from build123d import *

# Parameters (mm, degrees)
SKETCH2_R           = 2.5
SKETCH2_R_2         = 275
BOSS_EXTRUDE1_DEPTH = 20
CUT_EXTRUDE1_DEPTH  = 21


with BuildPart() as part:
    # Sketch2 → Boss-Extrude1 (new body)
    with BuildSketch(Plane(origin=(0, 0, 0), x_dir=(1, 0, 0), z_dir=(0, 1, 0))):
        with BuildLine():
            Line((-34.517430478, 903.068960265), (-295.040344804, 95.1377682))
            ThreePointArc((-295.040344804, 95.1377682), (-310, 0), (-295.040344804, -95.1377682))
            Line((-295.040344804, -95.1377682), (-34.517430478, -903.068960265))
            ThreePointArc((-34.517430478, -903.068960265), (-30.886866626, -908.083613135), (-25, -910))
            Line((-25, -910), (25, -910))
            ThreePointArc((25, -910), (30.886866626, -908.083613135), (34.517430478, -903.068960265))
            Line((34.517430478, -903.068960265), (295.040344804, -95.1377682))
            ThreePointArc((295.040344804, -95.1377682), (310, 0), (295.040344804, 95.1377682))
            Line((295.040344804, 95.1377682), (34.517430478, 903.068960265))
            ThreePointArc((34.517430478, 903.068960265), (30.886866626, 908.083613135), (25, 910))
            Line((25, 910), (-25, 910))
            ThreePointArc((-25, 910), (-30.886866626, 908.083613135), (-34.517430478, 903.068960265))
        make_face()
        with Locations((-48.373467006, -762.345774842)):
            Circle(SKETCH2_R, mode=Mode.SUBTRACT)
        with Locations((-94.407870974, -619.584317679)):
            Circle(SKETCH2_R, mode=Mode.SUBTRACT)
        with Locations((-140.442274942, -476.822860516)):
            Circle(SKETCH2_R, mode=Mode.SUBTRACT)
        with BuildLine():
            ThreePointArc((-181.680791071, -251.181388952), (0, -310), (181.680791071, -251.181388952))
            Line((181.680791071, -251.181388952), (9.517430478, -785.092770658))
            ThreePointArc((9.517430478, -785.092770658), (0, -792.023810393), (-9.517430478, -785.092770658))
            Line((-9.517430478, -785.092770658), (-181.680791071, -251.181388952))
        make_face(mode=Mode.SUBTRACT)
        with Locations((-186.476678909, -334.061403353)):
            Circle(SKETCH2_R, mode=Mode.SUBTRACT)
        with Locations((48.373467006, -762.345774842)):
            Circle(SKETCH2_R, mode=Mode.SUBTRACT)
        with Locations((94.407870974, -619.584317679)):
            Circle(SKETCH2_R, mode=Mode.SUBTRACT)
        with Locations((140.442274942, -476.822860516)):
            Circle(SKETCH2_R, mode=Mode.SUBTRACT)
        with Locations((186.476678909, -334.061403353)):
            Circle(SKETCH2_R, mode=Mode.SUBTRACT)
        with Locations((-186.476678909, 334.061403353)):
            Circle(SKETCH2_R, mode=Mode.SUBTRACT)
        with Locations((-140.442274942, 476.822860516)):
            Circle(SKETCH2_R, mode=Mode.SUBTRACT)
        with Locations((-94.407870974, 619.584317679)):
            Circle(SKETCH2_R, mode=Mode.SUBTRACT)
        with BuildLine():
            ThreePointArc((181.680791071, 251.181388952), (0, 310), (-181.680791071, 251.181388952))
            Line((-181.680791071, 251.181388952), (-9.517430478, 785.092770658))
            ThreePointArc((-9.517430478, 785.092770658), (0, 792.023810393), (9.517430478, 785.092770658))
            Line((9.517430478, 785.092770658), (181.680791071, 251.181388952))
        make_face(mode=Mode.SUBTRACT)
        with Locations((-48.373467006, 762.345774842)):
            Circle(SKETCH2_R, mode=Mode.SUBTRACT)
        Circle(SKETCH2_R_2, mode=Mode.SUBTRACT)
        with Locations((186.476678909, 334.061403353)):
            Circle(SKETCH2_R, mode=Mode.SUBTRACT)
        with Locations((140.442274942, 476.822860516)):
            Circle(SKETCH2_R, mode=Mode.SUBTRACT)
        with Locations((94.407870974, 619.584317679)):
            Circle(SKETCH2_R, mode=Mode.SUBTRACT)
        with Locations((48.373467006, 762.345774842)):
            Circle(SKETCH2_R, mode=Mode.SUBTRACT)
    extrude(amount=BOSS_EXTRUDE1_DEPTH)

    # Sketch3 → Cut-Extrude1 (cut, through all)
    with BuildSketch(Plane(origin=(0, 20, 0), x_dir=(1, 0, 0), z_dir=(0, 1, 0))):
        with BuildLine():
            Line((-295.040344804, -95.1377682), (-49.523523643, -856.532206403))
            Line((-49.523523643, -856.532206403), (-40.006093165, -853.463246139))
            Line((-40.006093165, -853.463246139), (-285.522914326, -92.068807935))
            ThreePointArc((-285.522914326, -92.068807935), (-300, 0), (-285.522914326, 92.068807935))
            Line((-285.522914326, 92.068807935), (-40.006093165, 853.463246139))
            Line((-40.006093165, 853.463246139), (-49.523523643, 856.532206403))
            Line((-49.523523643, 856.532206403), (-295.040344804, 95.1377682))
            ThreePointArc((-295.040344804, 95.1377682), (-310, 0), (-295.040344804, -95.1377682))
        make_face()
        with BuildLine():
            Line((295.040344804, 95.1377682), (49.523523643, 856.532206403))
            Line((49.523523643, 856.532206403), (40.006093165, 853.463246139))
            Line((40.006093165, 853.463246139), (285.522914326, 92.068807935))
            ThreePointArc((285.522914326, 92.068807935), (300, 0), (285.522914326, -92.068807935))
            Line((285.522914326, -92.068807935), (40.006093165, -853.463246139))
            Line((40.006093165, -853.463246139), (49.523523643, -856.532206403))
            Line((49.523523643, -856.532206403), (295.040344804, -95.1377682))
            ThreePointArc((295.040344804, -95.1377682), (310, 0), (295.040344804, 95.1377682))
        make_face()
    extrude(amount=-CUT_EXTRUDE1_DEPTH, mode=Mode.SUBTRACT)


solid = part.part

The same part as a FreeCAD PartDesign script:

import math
import FreeCAD as App
import Part
import Sketcher
Q = App.Units.Quantity

doc = App.newDocument("Part")
body = doc.addObject("PartDesign::Body", "Body")

sketch1 = doc.addObject("Sketcher::SketchObject", "Sketch")
body.addObject(sketch1)
sketch1.AttachmentSupport = (doc.XZ_Plane, [""])
sketch1.MapMode = "FlatFace"
sketch1.addGeometry([
    Part.LineSegment(App.Vector(-34.51743, -903.06896, 0), App.Vector(-295.040345, -95.137768, 0)),
    Part.ArcOfCircle(Part.Circle(App.Vector(0, 0, 0), App.Vector(0, 0, 1), 310), math.radians(162.12773), math.radians(197.87227)),
    Part.LineSegment(App.Vector(-295.040345, 95.137768, 0), App.Vector(-34.51743, 903.06896, 0)),
    Part.ArcOfCircle(Part.Circle(App.Vector(-25, 900, 0), App.Vector(0, 0, 1), 10), math.radians(90), math.radians(162.12773)),
    Part.LineSegment(App.Vector(-25, 910, 0), App.Vector(25, 910, 0)),
    Part.ArcOfCircle(Part.Circle(App.Vector(25, 900, 0), App.Vector(0, 0, 1), 10), math.radians(17.87227), math.radians(90)),
    Part.LineSegment(App.Vector(34.51743, 903.06896, 0), App.Vector(295.040345, 95.137768, 0)),
    Part.ArcOfCircle(Part.Circle(App.Vector(0, 0, 0), App.Vector(0, 0, 1), 310), math.radians(-17.87227), math.radians(17.87227)),
    Part.LineSegment(App.Vector(295.040345, -95.137768, 0), App.Vector(34.51743, -903.06896, 0)),
    Part.ArcOfCircle(Part.Circle(App.Vector(25, -900, 0), App.Vector(0, 0, 1), 10), math.radians(-90), math.radians(-17.87227)),
    Part.LineSegment(App.Vector(25, -910, 0), App.Vector(-25, -910, 0)),
    Part.ArcOfCircle(Part.Circle(App.Vector(-25, -900, 0), App.Vector(0, 0, 1), 10), math.radians(-162.12773), math.radians(-90)),
    Part.Circle(App.Vector(-140.442275, 476.822861, 0), App.Vector(0, 0, 1), 2.5),
    Part.Circle(App.Vector(-94.407871, 619.584318, 0), App.Vector(0, 0, 1), 2.5),
    Part.Circle(App.Vector(-48.373467, 762.345775, 0), App.Vector(0, 0, 1), 2.5),
    Part.Circle(App.Vector(-186.476679, 334.061403, 0), App.Vector(0, 0, 1), 2.5),
    Part.Circle(App.Vector(48.373467, 762.345775, 0), App.Vector(0, 0, 1), 2.5),
    Part.Circle(App.Vector(94.407871, 619.584318, 0), App.Vector(0, 0, 1), 2.5),
    Part.LineSegment(App.Vector(-9.51743, 785.092771, 0), App.Vector(-181.680791, 251.181389, 0)),
    Part.ArcOfCircle(Part.Circle(App.Vector(0, 0, 0), App.Vector(0, 0, 1), 310), math.radians(54.121591), math.radians(125.878409)),
    Part.LineSegment(App.Vector(181.680791, 251.181389, 0), App.Vector(9.51743, 785.092771, 0)),
    Part.ArcOfCircle(Part.Circle(App.Vector(0, 782.02381, 0), App.Vector(0, 0, 1), 10), math.radians(17.87227), math.radians(162.12773)),
    Part.Circle(App.Vector(140.442275, 476.822861, 0), App.Vector(0, 0, 1), 2.5),
    Part.Circle(App.Vector(186.476679, 334.061403, 0), App.Vector(0, 0, 1), 2.5),
    Part.Circle(App.Vector(-186.476679, -334.061403, 0), App.Vector(0, 0, 1), 2.5),
    Part.Circle(App.Vector(-140.442275, -476.822861, 0), App.Vector(0, 0, 1), 2.5),
    Part.Circle(App.Vector(-94.407871, -619.584318, 0), App.Vector(0, 0, 1), 2.5),
    Part.Circle(App.Vector(-48.373467, -762.345775, 0), App.Vector(0, 0, 1), 2.5),
    Part.Circle(App.Vector(0, 0, 0), App.Vector(0, 0, 1), 275),
    Part.Circle(App.Vector(186.476679, -334.061403, 0), App.Vector(0, 0, 1), 2.5),
    Part.LineSegment(App.Vector(9.51743, -785.092771, 0), App.Vector(181.680791, -251.181389, 0)),
    Part.ArcOfCircle(Part.Circle(App.Vector(0, 0, 0), App.Vector(0, 0, 1), 310), math.radians(-125.878409), math.radians(-54.121591)),
    Part.LineSegment(App.Vector(-181.680791, -251.181389, 0), App.Vector(-9.51743, -785.092771, 0)),
    Part.ArcOfCircle(Part.Circle(App.Vector(0, -782.02381, 0), App.Vector(0, 0, 1), 10), math.radians(-162.12773), math.radians(-17.87227)),
    Part.Circle(App.Vector(48.373467, -762.345775, 0), App.Vector(0, 0, 1), 2.5),
    Part.Circle(App.Vector(94.407871, -619.584318, 0), App.Vector(0, 0, 1), 2.5),
    Part.Circle(App.Vector(140.442275, -476.822861, 0), App.Vector(0, 0, 1), 2.5),
], False)
sketch1.addConstraint([
    Sketcher.Constraint("Tangent", 0, 2, 1, 2),
    Sketcher.Constraint("Tangent", 1, 1, 2, 1),
    Sketcher.Constraint("Tangent", 2, 2, 3, 2),
    Sketcher.Constraint("Tangent", 3, 1, 4, 1),
    Sketcher.Constraint("Tangent", 4, 2, 5, 2),
    Sketcher.Constraint("Tangent", 5, 1, 6, 1),
    Sketcher.Constraint("Tangent", 6, 2, 7, 2),
    Sketcher.Constraint("Tangent", 7, 1, 8, 1),
    Sketcher.Constraint("Tangent", 8, 2, 9, 2),
    Sketcher.Constraint("Tangent", 9, 1, 10, 1),
    Sketcher.Constraint("Tangent", 10, 2, 11, 2),
    Sketcher.Constraint("Tangent", 11, 1, 0, 1),
    Sketcher.Constraint("Coincident", 18, 2, 19, 2),
    Sketcher.Constraint("Coincident", 19, 1, 20, 1),
    Sketcher.Constraint("Tangent", 20, 2, 21, 1),
    Sketcher.Constraint("Tangent", 21, 2, 18, 1),
    Sketcher.Constraint("Coincident", 30, 2, 31, 2),
    Sketcher.Constraint("Coincident", 31, 1, 32, 1),
    Sketcher.Constraint("Tangent", 32, 2, 33, 1),
    Sketcher.Constraint("Tangent", 33, 2, 30, 1),
    Sketcher.Constraint("Horizontal", 4),
    Sketcher.Constraint("Horizontal", 10),
    Sketcher.Constraint("Coincident", 1, 3, -1, 1),
    Sketcher.Constraint("Coincident", 7, 3, -1, 1),
    Sketcher.Constraint("Coincident", 19, 3, -1, 1),
    Sketcher.Constraint("Coincident", 28, 3, -1, 1),
    Sketcher.Constraint("Coincident", 31, 3, -1, 1),
    Sketcher.Constraint("Equal", 3, 5),
    Sketcher.Constraint("Equal", 1, 7),
    Sketcher.Constraint("Equal", 5, 9),
    Sketcher.Constraint("Equal", 9, 11),
    Sketcher.Constraint("Equal", 12, 13),
    Sketcher.Constraint("Equal", 13, 14),
    Sketcher.Constraint("Equal", 14, 15),
    Sketcher.Constraint("Equal", 15, 16),
    Sketcher.Constraint("Equal", 16, 17),
    Sketcher.Constraint("Equal", 7, 19),
    Sketcher.Constraint("Equal", 11, 21),
    Sketcher.Constraint("Equal", 17, 22),
    Sketcher.Constraint("Equal", 22, 23),
    Sketcher.Constraint("Equal", 23, 24),
    Sketcher.Constraint("Equal", 24, 25),
    Sketcher.Constraint("Equal", 25, 26),
    Sketcher.Constraint("Equal", 26, 27),
    Sketcher.Constraint("Equal", 27, 29),
    Sketcher.Constraint("Equal", 19, 31),
    Sketcher.Constraint("Equal", 21, 33),
    Sketcher.Constraint("Equal", 29, 34),
    Sketcher.Constraint("Equal", 34, 35),
    Sketcher.Constraint("Equal", 35, 36),
    Sketcher.Constraint("Symmetric", 3, 3, 9, 3, -1, 1),
    Sketcher.Constraint("Symmetric", 23, 3, 24, 3, -1, 1),
    Sketcher.Constraint("Symmetric", 22, 3, 25, 3, -1, 1),
    Sketcher.Constraint("Symmetric", 17, 3, 26, 3, -1, 1),
    Sketcher.Constraint("Symmetric", 16, 3, 27, 3, -1, 1),
    Sketcher.Constraint("Symmetric", 15, 3, 29, 3, -1, 1),
    Sketcher.Constraint("Symmetric", 21, 3, 33, 3, -1, 1),
    Sketcher.Constraint("Symmetric", 14, 3, 34, 3, -1, 1),
    Sketcher.Constraint("Symmetric", 13, 3, 35, 3, -1, 1),
    Sketcher.Constraint("Symmetric", 12, 3, 36, 3, -1, 1),
    Sketcher.Constraint("Symmetric", 14, 3, 16, 3, -2),
    Sketcher.Constraint("Symmetric", 13, 3, 17, 3, -2),
    Sketcher.Constraint("Symmetric", 12, 3, 22, 3, -2),
    Sketcher.Constraint("Symmetric", 15, 3, 23, 3, -2),
    Sketcher.Constraint("PointOnObject", 21, 3, -2),
    Sketcher.Constraint("Parallel", 0, 6),
    Sketcher.Constraint("Parallel", 8, 18),
    Sketcher.Constraint("Parallel", 6, 20),
    Sketcher.Constraint("Parallel", 18, 30),
    Sketcher.Constraint("Parallel", 20, 32),
    Sketcher.Constraint("Vertical", 5, 3, 9, 3),
    Sketcher.Constraint("Diameter", 12, Q("5 mm")),
    Sketcher.Constraint("Diameter", 28, Q("550 mm")),
    Sketcher.Constraint("Radius", 1, Q("310 mm")),
    Sketcher.Constraint("Radius", 3, Q("10 mm")),
    Sketcher.Constraint("DistanceX", 4, 1, 4, 2, Q("50 mm")),
    Sketcher.Constraint("DistanceY", -1, 1, 3, 3, Q("900 mm")),
    Sketcher.Constraint("DistanceY", -1, 1, 12, 3, Q("476.822861 mm")),
    Sketcher.Constraint("DistanceX", 13, 3, -1, 1, Q("94.407871 mm")),
    Sketcher.Constraint("DistanceX", 15, 3, -1, 1, Q("186.476679 mm")),
    Sketcher.Constraint("DistanceY", -1, 1, 21, 3, Q("782.02381 mm")),
    Sketcher.Constraint("DistanceX", 15, 3, 14, 3, Q("138.103212 mm")),
    Sketcher.Constraint("DistanceY", 15, 3, 14, 3, Q("428.284371 mm")),
    Sketcher.Constraint("DistanceX", 12, 3, 16, 3, Q("188.815742 mm")),
    Sketcher.Constraint("DistanceY", -1, 1, 13, 3, Q("619.584318 mm")),
    Sketcher.Constraint("DistanceY", -1, 1, 14, 3, Q("762.345775 mm")),
])
pad1 = doc.addObject("PartDesign::Pad", "Pad")
body.addObject(pad1)
pad1.Profile = sketch1
pad1.Length = 20
pad1.Reversed = True

sketch2 = doc.addObject("Sketcher::SketchObject", "Sketch001")
body.addObject(sketch2)
sketch2.AttachmentSupport = (doc.XZ_Plane, [""])
sketch2.MapMode = "FlatFace"
sketch2.AttachmentOffset = App.Placement(App.Vector(0, 0, -20), App.Rotation())
sketch2.addGeometry([
    Part.LineSegment(App.Vector(-295.040345, 95.137768, 0), App.Vector(-49.523524, 856.532206, 0)),
    Part.LineSegment(App.Vector(-49.523524, 856.532206, 0), App.Vector(-40.006093, 853.463246, 0)),
    Part.LineSegment(App.Vector(-40.006093, 853.463246, 0), App.Vector(-285.522914, 92.068808, 0)),
    Part.ArcOfCircle(Part.Circle(App.Vector(0, 0, 0), App.Vector(0, 0, 1), 300), math.radians(162.12773), math.radians(197.87227)),
    Part.LineSegment(App.Vector(-285.522914, -92.068808, 0), App.Vector(-40.006093, -853.463246, 0)),
    Part.LineSegment(App.Vector(-40.006093, -853.463246, 0), App.Vector(-49.523524, -856.532206, 0)),
    Part.LineSegment(App.Vector(-49.523524, -856.532206, 0), App.Vector(-295.040345, -95.137768, 0)),
    Part.ArcOfCircle(Part.Circle(App.Vector(0, 0, 0), App.Vector(0, 0, 1), 310), math.radians(162.12773), math.radians(197.87227)),
    Part.LineSegment(App.Vector(295.040345, -95.137768, 0), App.Vector(49.523524, -856.532206, 0)),
    Part.LineSegment(App.Vector(49.523524, -856.532206, 0), App.Vector(40.006093, -853.463246, 0)),
    Part.LineSegment(App.Vector(40.006093, -853.463246, 0), App.Vector(285.522914, -92.068808, 0)),
    Part.ArcOfCircle(Part.Circle(App.Vector(0, 0, 0), App.Vector(0, 0, 1), 300), math.radians(-17.87227), math.radians(17.87227)),
    Part.LineSegment(App.Vector(285.522914, 92.068808, 0), App.Vector(40.006093, 853.463246, 0)),
    Part.LineSegment(App.Vector(40.006093, 853.463246, 0), App.Vector(49.523524, 856.532206, 0)),
    Part.LineSegment(App.Vector(49.523524, 856.532206, 0), App.Vector(295.040345, 95.137768, 0)),
    Part.ArcOfCircle(Part.Circle(App.Vector(0, 0, 0), App.Vector(0, 0, 1), 310), math.radians(-17.87227), math.radians(17.87227)),
], False)
sketch2.addConstraint([
    Sketcher.Constraint("Coincident", 0, 2, 1, 1),
    Sketcher.Constraint("Coincident", 1, 2, 2, 1),
    Sketcher.Constraint("Tangent", 2, 2, 3, 1),
    Sketcher.Constraint("Tangent", 3, 2, 4, 1),
    Sketcher.Constraint("Coincident", 4, 2, 5, 1),
    Sketcher.Constraint("Coincident", 5, 2, 6, 1),
    Sketcher.Constraint("Tangent", 6, 2, 7, 2),
    Sketcher.Constraint("Tangent", 7, 1, 0, 1),
    Sketcher.Constraint("Coincident", 8, 2, 9, 1),
    Sketcher.Constraint("Coincident", 9, 2, 10, 1),
    Sketcher.Constraint("Tangent", 10, 2, 11, 1),
    Sketcher.Constraint("Tangent", 11, 2, 12, 1),
    Sketcher.Constraint("Coincident", 12, 2, 13, 1),
    Sketcher.Constraint("Coincident", 13, 2, 14, 1),
    Sketcher.Constraint("Tangent", 14, 2, 15, 2),
    Sketcher.Constraint("Tangent", 15, 1, 8, 1),
    Sketcher.Constraint("Coincident", 3, 3, -1, 1),
    Sketcher.Constraint("Coincident", 7, 3, -1, 1),
    Sketcher.Constraint("Coincident", 11, 3, -1, 1),
    Sketcher.Constraint("Coincident", 15, 3, -1, 1),
    Sketcher.Constraint("Equal", 3, 11),
    Sketcher.Constraint("Equal", 7, 15),
    Sketcher.Constraint("Symmetric", 0, 2, 8, 2, -1, 1),
    Sketcher.Constraint("Symmetric", 1, 2, 9, 2, -1, 1),
    Sketcher.Constraint("Symmetric", 4, 2, 12, 2, -1, 1),
    Sketcher.Constraint("Symmetric", 5, 2, 13, 2, -1, 1),
    Sketcher.Constraint("Symmetric", 5, 2, 8, 2, -2),
    Sketcher.Constraint("Symmetric", 4, 2, 9, 2, -2),
    Sketcher.Constraint("Perpendicular", 0, 1),
    Sketcher.Constraint("Perpendicular", 1, 2),
    Sketcher.Constraint("Radius", 3, Q("300 mm")),
    Sketcher.Constraint("Radius", 7, Q("310 mm")),
    Sketcher.Constraint("Distance", 0, Q("800 mm")),
    Sketcher.Constraint("DistanceY", 2, 2, 13, 2, Q("764.463398 mm")),
])
pocket1 = doc.addObject("PartDesign::Pocket", "Pocket")
body.addObject(pocket1)
pocket1.Profile = sketch2
pocket1.Type = "ThroughAll"
pocket1.Reversed = True

doc.recompute()
